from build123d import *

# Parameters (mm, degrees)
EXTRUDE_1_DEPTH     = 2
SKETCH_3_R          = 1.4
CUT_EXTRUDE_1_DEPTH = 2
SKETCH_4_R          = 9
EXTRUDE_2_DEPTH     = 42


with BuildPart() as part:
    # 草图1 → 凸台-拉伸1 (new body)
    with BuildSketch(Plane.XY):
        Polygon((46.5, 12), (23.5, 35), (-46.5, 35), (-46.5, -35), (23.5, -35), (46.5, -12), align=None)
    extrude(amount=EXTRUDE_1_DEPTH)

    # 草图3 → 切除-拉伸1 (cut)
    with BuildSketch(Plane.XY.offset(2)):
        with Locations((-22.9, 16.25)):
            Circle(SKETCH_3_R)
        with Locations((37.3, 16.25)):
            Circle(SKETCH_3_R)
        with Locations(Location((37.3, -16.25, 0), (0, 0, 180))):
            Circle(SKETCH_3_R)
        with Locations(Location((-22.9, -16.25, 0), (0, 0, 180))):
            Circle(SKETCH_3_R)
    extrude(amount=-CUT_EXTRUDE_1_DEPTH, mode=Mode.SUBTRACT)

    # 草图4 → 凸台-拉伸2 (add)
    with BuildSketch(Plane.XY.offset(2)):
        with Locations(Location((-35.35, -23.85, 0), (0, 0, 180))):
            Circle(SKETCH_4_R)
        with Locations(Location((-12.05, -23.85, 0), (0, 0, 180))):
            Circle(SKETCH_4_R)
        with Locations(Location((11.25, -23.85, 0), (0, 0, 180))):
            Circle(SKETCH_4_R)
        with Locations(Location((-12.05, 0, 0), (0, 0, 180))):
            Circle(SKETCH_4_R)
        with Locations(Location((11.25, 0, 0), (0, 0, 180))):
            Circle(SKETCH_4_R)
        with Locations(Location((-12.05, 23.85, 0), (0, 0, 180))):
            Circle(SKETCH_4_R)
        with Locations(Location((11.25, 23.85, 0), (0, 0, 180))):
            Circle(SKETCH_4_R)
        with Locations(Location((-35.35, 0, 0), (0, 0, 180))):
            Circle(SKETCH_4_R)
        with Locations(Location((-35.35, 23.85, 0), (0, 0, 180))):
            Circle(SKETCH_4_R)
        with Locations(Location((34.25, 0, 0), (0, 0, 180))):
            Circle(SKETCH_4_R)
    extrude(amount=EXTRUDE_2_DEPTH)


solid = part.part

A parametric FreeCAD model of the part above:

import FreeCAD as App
import Part
import Sketcher
from FreeCAD import Vector
Q = App.Units.Quantity

doc = App.newDocument("Part")
body = doc.addObject("PartDesign::Body", "Body")

sketch1 = doc.addObject("Sketcher::SketchObject", "Sketch")
body.addObject(sketch1)
sketch1.AttachmentSupport = (doc.XY_Plane, [""])
sketch1.MapMode = "FlatFace"
sketch1.addGeometry(Part.LineSegment(Vector(46, 12, 0), Vector(24, 35, 0)), False)
sketch1.addGeometry(Part.LineSegment(Vector(24, 35, 0), Vector(-46, 35, 0)), False)
sketch1.addGeometry(Part.LineSegment(Vector(-46, 35, 0), Vector(-46, -35, 0)), False)
sketch1.addGeometry(Part.LineSegment(Vector(-46, -35, 0), Vector(24, -35, 0)), False)
sketch1.addGeometry(Part.LineSegment(Vector(24, -35, 0), Vector(46, -12, 0)), False)
sketch1.addGeometry(Part.LineSegment(Vector(46, -12, 0), Vector(46, 12, 0)), False)
sketch1.addConstraint(Sketcher.Constraint("Coincident", 0, 2, 1, 1))
sketch1.addConstraint(Sketcher.Constraint("Coincident", 1, 2, 2, 1))
sketch1.addConstraint(Sketcher.Constraint("Coincident", 2, 2, 3, 1))
sketch1.addConstraint(Sketcher.Constraint("Coincident", 3, 2, 4, 1))
sketch1.addConstraint(Sketcher.Constraint("Coincident", 4, 2, 5, 1))
sketch1.addConstraint(Sketcher.Constraint("Coincident", 5, 2, 0, 1))
sketch1.addConstraint(Sketcher.Constraint("Horizontal", 1))
sketch1.addConstraint(Sketcher.Constraint("Vertical", 2))
sketch1.addConstraint(Sketcher.Constraint("Horizontal", 3))
sketch1.addConstraint(Sketcher.Constraint("Vertical", 5))
sketch1.addConstraint(Sketcher.Constraint("Symmetric", 0, 2, 3, 2, -1))
sketch1.addConstraint(Sketcher.Constraint("Perpendicular", 0, 4))
sketch1.addConstraint(Sketcher.Constraint("Equal", 3, 2))
sketch1.addConstraint(Sketcher.Constraint("Equal", 0, 4))
sketch1.addConstraint(Sketcher.Constraint("DistanceX", 1, 2, 1, 1, Q("70 mm")))
sketch1.addConstraint(Sketcher.Constraint("DistanceY", 5, 1, 5, 2, Q("24 mm")))
sketch1.addConstraint(Sketcher.Constraint("DistanceX", -1, 1, 0, 2, Q("23.5 mm")))
pad1 = doc.addObject("PartDesign::Pad", "Pad")
body.addObject(pad1)
pad1.Profile = sketch1
pad1.Length = 2

sketch2 = doc.addObject("Sketcher::SketchObject", "Sketch001")
body.addObject(sketch2)
sketch2.AttachmentSupport = (doc.XY_Plane, [""])
sketch2.MapMode = "FlatFace"
sketch2.AttachmentOffset = App.Placement(Vector(0, 0, 2), App.Rotation())
sketch2.addGeometry(Part.Circle(Vector(-22.9, 16.2, 0), Vector(0, 0, 1), 1.4), False)
sketch2.addGeometry(Part.Circle(Vector(37.3, 16.2, 0), Vector(0, 0, 1), 1.4), False)
sketch2.addGeometry(Part.Circle(Vector(37.3, -16.2, 0), Vector(0, 0, 1), 1.4), False)
sketch2.addGeometry(Part.Circle(Vector(-22.9, -16.2, 0), Vector(0, 0, 1), 1.4), False)
sketch2.addConstraint(Sketcher.Constraint("Equal", 0, 1))
sketch2.addConstraint(Sketcher.Constraint("Equal", 1, 2))
sketch2.addConstraint(Sketcher.Constraint("Equal", 2, 3))
sketch2.addConstraint(Sketcher.Constraint("Symmetric", 1, 3, 2, 3, -1))
sketch2.addConstraint(Sketcher.Constraint("Symmetric", 0, 3, 3, 3, -1))
sketch2.addConstraint(Sketcher.Constraint("Horizontal", 0, 3, 1, 3))
sketch2.addConstraint(Sketcher.Constraint("Diameter", 0, Q("2.8 mm")))
sketch2.addConstraint(Sketcher.Constraint("DistanceX", 0, 3, -1, 1, Q("22.9 mm")))
sketch2.addConstraint(Sketcher.Constraint("DistanceX", -1, 1, 1, 3, Q("37.3 mm")))
sketch2.addConstraint(Sketcher.Constraint("DistanceY", 2, 3, 1, 3, Q("32.5 mm")))
pocket1 = doc.addObject("PartDesign::Pocket", "Pocket")
body.addObject(pocket1)
pocket1.Profile = sketch2
pocket1.Length = 2

sketch3 = doc.addObject("Sketcher::SketchObject", "Sketch002")
body.addObject(sketch3)
sketch3.AttachmentSupport = (doc.XY_Plane, [""])
sketch3.MapMode = "FlatFace"
sketch3.AttachmentOffset = App.Placement(Vector(0, 0, 2), App.Rotation())
sketch3.addGeometry(Part.Circle(Vector(-35, -24, 0), Vector(0, 0, 1), 9), False)
sketch3.addGeometry(Part.Circle(Vector(-12, -24, 0), Vector(0, 0, 1), 9), False)
sketch3.addGeometry(Part.Circle(Vector(11, -24, 0), Vector(0, 0, 1), 9), False)
sketch3.addGeometry(Part.Circle(Vector(-12, 0, 0), Vector(0, 0, 1), 9), False)
sketch3.addGeometry(Part.Circle(Vector(11, 0, 0), Vector(0, 0, 1), 9), False)
sketch3.addGeometry(Part.Circle(Vector(-12, 24, 0), Vector(0, 0, 1), 9), False)
sketch3.addGeometry(Part.Circle(Vector(11, 24, 0), Vector(0, 0, 1), 9), False)
sketch3.addGeometry(Part.Circle(Vector(-35, 0, 0), Vector(0, 0, 1), 9), False)
sketch3.addGeometry(Part.Circle(Vector(-35, 24, 0), Vector(0, 0, 1), 9), False)
sketch3.addGeometry(Part.Circle(Vector(34, 0, 0), Vector(0, 0, 1), 9), False)
sketch3.addConstraint(Sketcher.Constraint("Equal", 0, 1))
sketch3.addConstraint(Sketcher.Constraint("Equal", 1, 2))
sketch3.addConstraint(Sketcher.Constraint("Equal", 2, 3))
sketch3.addConstraint(Sketcher.Constraint("Equal", 3, 4))
sketch3.addConstraint(Sketcher.Constraint("Equal", 4, 5))
sketch3.addConstraint(Sketcher.Constraint("Equal", 5, 6))
sketch3.addConstraint(Sketcher.Constraint("Equal", 6, 7))
sketch3.addConstraint(Sketcher.Constraint("Equal", 7, 8))
sketch3.addConstraint(Sketcher.Constraint("Equal", 8, 9))
sketch3.addConstraint(Sketcher.Constraint("Symmetric", 1, 3, 5, 3, -1))
sketch3.addConstraint(Sketcher.Constraint("Symmetric", 2, 3, 6, 3, -1))
sketch3.addConstraint(Sketcher.Constraint("Symmetric", 0, 3, 8, 3, -1))
sketch3.addConstraint(Sketcher.Constraint("PointOnObject", 3, 3, -1))
sketch3.addConstraint(Sketcher.Constraint("PointOnObject", 4, 3, -1))
sketch3.addConstraint(Sketcher.Constraint("PointOnObject", 7, 3, -1))
sketch3.addConstraint(Sketcher.Constraint("PointOnObject", 9, 3, -1))
sketch3.addConstraint(Sketcher.Constraint("Horizontal", 0, 3, 1, 3))
sketch3.addConstraint(Sketcher.Constraint("Horizontal", 1, 3, 2, 3))
sketch3.addConstraint(Sketcher.Constraint("Vertical", 1, 3, 3, 3))
sketch3.addConstraint(Sketcher.Constraint("Vertical", 2, 3, 4, 3))
sketch3.addConstraint(Sketcher.Constraint("Vertical", 0, 3, 7, 3))
sketch3.addConstraint(Sketcher.Constraint("Diameter", 0, Q("18 mm")))
sketch3.addConstraint(Sketcher.Constraint("DistanceX", 4, 3, 9, 3, Q("23 mm")))
sketch3.addConstraint(Sketcher.Constraint("DistanceX", 0, 3, 1, 3, Q("23.3 mm")))
sketch3.addConstraint(Sketcher.Constraint("DistanceX", 1, 3, 2, 3, Q("23.3 mm")))
sketch3.addConstraint(Sketcher.Constraint("DistanceY", 1, 3, 5, 3, Q("47.7 mm")))
sketch3.addConstraint(Sketcher.Constraint("DistanceX", 0, 3, -1, 1, Q("35.35 mm")))
pad2 = doc.addObject("PartDesign::Pad", "Pad001")
body.addObject(pad2)
pad2.Profile = sketch3
pad2.Length = 42

doc.recompute()
